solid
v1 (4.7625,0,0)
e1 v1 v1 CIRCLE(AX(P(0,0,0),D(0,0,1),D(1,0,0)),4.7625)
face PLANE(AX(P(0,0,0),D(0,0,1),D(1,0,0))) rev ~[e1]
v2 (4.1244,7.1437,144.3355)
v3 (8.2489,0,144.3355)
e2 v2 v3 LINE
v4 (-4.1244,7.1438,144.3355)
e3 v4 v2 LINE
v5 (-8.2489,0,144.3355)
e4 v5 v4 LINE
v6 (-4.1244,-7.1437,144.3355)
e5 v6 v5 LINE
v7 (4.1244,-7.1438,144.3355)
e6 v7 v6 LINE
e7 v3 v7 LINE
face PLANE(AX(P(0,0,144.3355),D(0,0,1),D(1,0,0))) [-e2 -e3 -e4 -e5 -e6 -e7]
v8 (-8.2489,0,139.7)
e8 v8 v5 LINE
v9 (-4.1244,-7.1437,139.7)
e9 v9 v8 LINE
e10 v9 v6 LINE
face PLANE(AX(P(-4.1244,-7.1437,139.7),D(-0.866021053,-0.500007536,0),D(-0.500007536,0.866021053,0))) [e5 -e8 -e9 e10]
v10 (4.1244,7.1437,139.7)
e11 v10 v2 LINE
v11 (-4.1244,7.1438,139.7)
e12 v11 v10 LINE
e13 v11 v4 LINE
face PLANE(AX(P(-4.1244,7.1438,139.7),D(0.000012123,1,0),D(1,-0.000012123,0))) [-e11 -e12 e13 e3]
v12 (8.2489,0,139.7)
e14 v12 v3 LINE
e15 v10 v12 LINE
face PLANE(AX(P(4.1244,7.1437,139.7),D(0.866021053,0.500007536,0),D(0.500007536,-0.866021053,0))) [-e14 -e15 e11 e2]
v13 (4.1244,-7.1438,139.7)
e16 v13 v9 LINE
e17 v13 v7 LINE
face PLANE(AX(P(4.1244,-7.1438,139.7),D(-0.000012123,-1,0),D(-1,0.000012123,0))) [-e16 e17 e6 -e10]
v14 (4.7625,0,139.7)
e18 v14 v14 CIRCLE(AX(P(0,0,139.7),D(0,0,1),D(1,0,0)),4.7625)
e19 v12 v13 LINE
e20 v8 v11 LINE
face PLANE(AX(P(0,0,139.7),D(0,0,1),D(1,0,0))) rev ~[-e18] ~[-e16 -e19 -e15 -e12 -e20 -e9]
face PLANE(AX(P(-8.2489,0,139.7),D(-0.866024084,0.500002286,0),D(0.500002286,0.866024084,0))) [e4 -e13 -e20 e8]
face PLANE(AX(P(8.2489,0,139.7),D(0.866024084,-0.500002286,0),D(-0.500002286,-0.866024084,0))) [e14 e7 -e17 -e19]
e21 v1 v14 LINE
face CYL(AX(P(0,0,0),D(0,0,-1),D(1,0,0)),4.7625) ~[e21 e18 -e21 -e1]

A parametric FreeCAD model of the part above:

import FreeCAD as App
import Part
import Sketcher
Q = App.Units.Quantity

doc = App.newDocument("Part")
body = doc.addObject("PartDesign::Body", "Body")

sketch1 = body.newObject("Sketcher::SketchObject", "Sketch")
sketch1.AttachmentSupport = (doc.getObject("XY_Plane"), [""])
sketch1.MapMode = "FlatFace"
sketch1.addGeometry(Part.Circle(App.Vector(0, 0, 0), App.Vector(0, 0, 1), 4.8), False)
sketch1.addConstraint(Sketcher.Constraint("Coincident", 0, 3, -1, 1))
sketch1.addConstraint(Sketcher.Constraint("Diameter", 0, Q("0.375 in")))
pad1 = body.newObject("PartDesign::Pad", "Pad")
pad1.Profile = sketch1
pad1.Length = Q("5.5 in")

sketch2 = body.newObject("Sketcher::SketchObject", "Sketch001")
sketch2.AttachmentSupport = (doc.getObject("XY_Plane"), [""])
sketch2.MapMode = "FlatFace"
sketch2.AttachmentOffset = App.Placement(App.Vector(0, 0, 5.5 * 25.4), App.Rotation())
sketch2.addGeometry(Part.LineSegment(App.Vector(4, 7, 0), App.Vector(-4, 7, 0)), False)
sketch2.addGeometry(Part.LineSegment(App.Vector(-4, 7, 0), App.Vector(-8, 0, 0)), False)
sketch2.addGeometry(Part.LineSegment(App.Vector(-8, 0, 0), App.Vector(-4, -7, 0)), False)
sketch2.addGeometry(Part.LineSegment(App.Vector(-4, -7, 0), App.Vector(4, -7, 0)), False)
sketch2.addGeometry(Part.LineSegment(App.Vector(4, -7, 0), App.Vector(8, 0, 0)), False)
sketch2.addGeometry(Part.LineSegment(App.Vector(8, 0, 0), App.Vector(4, 7, 0)), False)
sketch2.addConstraint(Sketcher.Constraint("Coincident", 0, 2, 1, 1))
sketch2.addConstraint(Sketcher.Constraint("Coincident", 1, 2, 2, 1))
sketch2.addConstraint(Sketcher.Constraint("Coincident", 2, 2, 3, 1))
sketch2.addConstraint(Sketcher.Constraint("Coincident", 3, 2, 4, 1))
sketch2.addConstraint(Sketcher.Constraint("Coincident", 4, 2, 5, 1))
sketch2.addConstraint(Sketcher.Constraint("Coincident", 5, 2, 0, 1))
sketch2.addConstraint(Sketcher.Constraint("Horizontal", 0))
sketch2.addConstraint(Sketcher.Constraint("Horizontal", 3))
sketch2.addConstraint(Sketcher.Constraint("Symmetric", 0, 2, 3, 2, -1, 1))
sketch2.addConstraint(Sketcher.Constraint("Symmetric", 1, 2, 4, 2, -1, 1))
sketch2.addConstraint(Sketcher.Constraint("PointOnObject", 1, 2, -1))
sketch2.addConstraint(Sketcher.Constraint("Parallel", 2, 5))
sketch2.addConstraint(Sketcher.Constraint("Vertical", 0, 2, 2, 2))
sketch2.addConstraint(Sketcher.Constraint("Angle", 2, Q("-59.9995 deg")))
sketch2.addConstraint(Sketcher.Constraint("DistanceY", -1, 1, 0, 2, Q("0.281252 in")))
sketch2.addConstraint(Sketcher.Constraint("DistanceX", 0, 2, 0, 1, 8.2488))
pad2 = body.newObject("PartDesign::Pad", "Pad001")
pad2.Profile = sketch2
pad2.Length = Q("0.1825 in")

doc.recompute()
